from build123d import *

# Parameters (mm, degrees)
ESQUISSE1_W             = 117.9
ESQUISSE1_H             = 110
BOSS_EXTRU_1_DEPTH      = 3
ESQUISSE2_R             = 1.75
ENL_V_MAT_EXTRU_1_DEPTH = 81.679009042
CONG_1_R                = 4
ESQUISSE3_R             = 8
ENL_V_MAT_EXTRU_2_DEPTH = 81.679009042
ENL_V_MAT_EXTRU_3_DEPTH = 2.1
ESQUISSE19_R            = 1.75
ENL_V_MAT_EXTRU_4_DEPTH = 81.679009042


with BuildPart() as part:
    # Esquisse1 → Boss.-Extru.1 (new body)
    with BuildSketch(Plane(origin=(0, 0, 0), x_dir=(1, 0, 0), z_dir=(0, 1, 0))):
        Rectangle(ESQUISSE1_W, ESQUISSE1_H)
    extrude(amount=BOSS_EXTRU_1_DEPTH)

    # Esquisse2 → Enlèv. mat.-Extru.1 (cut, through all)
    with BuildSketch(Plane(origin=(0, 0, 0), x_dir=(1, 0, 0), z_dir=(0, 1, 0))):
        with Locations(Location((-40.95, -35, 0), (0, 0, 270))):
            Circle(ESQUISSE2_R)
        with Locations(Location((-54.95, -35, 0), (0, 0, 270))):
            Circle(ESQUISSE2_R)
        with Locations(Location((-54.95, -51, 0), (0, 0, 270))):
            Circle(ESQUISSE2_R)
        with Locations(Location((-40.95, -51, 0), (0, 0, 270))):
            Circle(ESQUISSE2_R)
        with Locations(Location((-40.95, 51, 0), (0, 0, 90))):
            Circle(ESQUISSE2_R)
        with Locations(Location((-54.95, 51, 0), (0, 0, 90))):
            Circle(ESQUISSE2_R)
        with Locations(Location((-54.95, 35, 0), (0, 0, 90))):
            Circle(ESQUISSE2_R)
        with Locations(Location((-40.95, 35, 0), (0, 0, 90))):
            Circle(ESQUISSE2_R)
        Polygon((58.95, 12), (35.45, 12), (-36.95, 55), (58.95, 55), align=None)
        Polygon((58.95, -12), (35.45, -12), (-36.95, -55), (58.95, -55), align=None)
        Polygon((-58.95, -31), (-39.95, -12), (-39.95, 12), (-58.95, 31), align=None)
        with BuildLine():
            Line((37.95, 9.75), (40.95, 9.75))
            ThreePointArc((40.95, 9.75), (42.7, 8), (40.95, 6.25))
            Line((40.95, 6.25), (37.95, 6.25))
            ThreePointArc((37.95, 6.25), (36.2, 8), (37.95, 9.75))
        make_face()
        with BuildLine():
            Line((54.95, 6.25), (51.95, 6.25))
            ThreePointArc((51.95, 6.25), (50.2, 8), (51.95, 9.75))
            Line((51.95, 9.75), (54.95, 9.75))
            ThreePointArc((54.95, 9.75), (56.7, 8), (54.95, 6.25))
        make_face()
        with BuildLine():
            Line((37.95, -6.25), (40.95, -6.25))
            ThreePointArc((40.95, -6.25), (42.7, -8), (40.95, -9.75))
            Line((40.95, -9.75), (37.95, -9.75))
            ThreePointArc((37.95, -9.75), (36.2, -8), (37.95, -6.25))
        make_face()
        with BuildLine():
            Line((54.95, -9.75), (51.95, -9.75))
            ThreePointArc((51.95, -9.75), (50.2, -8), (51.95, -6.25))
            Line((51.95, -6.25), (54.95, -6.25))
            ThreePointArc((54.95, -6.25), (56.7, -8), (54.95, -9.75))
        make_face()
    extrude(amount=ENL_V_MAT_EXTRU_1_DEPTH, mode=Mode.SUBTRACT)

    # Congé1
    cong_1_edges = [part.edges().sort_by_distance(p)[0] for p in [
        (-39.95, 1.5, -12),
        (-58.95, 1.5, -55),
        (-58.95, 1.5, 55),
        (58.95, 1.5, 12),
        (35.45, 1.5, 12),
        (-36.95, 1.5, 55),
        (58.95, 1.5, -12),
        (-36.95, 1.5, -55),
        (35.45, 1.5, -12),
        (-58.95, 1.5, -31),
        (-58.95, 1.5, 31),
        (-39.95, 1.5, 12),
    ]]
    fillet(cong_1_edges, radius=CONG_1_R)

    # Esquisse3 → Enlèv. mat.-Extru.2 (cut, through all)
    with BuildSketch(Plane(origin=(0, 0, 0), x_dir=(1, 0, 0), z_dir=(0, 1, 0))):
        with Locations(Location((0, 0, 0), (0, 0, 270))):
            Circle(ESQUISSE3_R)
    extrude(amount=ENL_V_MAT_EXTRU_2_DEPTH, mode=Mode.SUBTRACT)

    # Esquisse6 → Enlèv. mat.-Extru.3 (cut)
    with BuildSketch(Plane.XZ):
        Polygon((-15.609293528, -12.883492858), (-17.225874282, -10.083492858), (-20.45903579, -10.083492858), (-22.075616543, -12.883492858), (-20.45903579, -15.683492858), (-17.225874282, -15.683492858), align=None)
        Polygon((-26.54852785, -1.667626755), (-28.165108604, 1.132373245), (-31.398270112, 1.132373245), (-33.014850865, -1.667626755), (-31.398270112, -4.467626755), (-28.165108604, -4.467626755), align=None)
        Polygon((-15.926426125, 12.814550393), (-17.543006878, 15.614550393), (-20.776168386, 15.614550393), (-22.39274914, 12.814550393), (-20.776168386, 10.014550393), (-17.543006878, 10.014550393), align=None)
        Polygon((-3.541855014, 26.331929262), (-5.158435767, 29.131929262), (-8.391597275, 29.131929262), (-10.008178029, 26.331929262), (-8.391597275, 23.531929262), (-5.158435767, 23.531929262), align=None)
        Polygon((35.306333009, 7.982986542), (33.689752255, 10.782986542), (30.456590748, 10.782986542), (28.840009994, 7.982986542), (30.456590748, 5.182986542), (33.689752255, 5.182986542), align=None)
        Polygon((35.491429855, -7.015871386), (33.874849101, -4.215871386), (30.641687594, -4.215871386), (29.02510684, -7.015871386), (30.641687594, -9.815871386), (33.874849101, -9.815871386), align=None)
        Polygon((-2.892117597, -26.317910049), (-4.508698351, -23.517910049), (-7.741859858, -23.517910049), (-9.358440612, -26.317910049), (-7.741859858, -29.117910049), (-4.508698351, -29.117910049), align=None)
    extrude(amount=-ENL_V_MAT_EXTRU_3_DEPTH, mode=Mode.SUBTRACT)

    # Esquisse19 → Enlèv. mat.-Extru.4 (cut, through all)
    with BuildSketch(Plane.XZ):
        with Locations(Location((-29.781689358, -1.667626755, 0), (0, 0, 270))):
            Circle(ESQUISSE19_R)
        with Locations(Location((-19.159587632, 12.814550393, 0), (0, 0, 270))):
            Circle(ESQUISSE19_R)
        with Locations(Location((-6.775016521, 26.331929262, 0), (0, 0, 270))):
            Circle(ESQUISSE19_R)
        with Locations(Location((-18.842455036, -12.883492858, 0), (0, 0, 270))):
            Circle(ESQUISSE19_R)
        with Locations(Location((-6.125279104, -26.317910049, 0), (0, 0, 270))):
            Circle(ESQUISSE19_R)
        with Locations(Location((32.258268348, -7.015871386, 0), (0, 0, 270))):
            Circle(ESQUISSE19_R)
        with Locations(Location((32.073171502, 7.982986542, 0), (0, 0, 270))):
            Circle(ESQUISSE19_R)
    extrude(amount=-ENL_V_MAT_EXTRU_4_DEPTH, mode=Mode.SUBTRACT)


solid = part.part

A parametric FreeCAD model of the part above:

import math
import FreeCAD as App
import Part
import Sketcher
from FreeCAD import Vector
Q = App.Units.Quantity


def edges_at(feature, points):
    """Names of the edges that pass closest to the given points."""
    edges = feature.Shape.Edges
    near = lambda p: min(range(len(edges)), key=lambda i: edges[i].distToShape(Part.Vertex(*p))[0])
    return sorted({f"Edge{near(p) + 1}" for p in points})

doc = App.newDocument("Part")
body = doc.addObject("PartDesign::Body", "Body")

# Sketch on XZ plane
sketch1 = body.newObject("Sketcher::SketchObject", "Sketch")
sketch1.AttachmentSupport = (doc.getObject("XZ_Plane"), [""])
sketch1.MapMode = "FlatFace"
sketch1.addGeometry(Part.LineSegment(Vector(-58.95, -55, 0), Vector(-58.95, 55, 0)), False)
sketch1.addGeometry(Part.LineSegment(Vector(-58.95, 55, 0), Vector(58.95, 55, 0)), False)
sketch1.addGeometry(Part.LineSegment(Vector(58.95, 55, 0), Vector(58.95, -55, 0)), False)
sketch1.addGeometry(Part.LineSegment(Vector(58.95, -55, 0), Vector(-58.95, -55, 0)), False)
sketch1.addConstraint(Sketcher.Constraint("Coincident", 0, 2, 1, 1))
sketch1.addConstraint(Sketcher.Constraint("Coincident", 1, 2, 2, 1))
sketch1.addConstraint(Sketcher.Constraint("Coincident", 2, 2, 3, 1))
sketch1.addConstraint(Sketcher.Constraint("Coincident", 3, 2, 0, 1))
sketch1.addConstraint(Sketcher.Constraint("Vertical", 0))
sketch1.addConstraint(Sketcher.Constraint("Horizontal", 1))
sketch1.addConstraint(Sketcher.Constraint("Vertical", 2))
sketch1.addConstraint(Sketcher.Constraint("Horizontal", 3))
sketch1.addConstraint(Sketcher.Constraint("Symmetric", 0, 2, 2, 2, -1, 1))
sketch1.addConstraint(Sketcher.Constraint("DistanceY", 0, 1, 0, 2, 110.0))
sketch1.addConstraint(Sketcher.Constraint("DistanceX", 1, 1, 1, 2, 117.9))
pad1 = body.newObject("PartDesign::Pad", "Pad")
pad1.Profile = sketch1
pad1.Length = 3
pad1.Reversed = True

# Sketch on XZ plane
sketch2 = body.newObject("Sketcher::SketchObject", "Sketch001")
sketch2.AttachmentSupport = (doc.getObject("XZ_Plane"), [""])
sketch2.MapMode = "FlatFace"
sketch2.addGeometry(Part.Circle(Vector(-40.95, 35, 0), Vector(0, 0, 1), 1.75), False)
sketch2.addGeometry(Part.Circle(Vector(-54.95, 35, 0), Vector(0, 0, 1), 1.75), False)
sketch2.addGeometry(Part.Circle(Vector(-54.95, 51, 0), Vector(0, 0, 1), 1.75), False)
sketch2.addGeometry(Part.Circle(Vector(-40.95, 51, 0), Vector(0, 0, 1), 1.75), False)
sketch2.addGeometry(Part.Circle(Vector(-40.95, -51, 0), Vector(0, 0, 1), 1.75), False)
sketch2.addGeometry(Part.Circle(Vector(-54.95, -51, 0), Vector(0, 0, 1), 1.75), False)
sketch2.addGeometry(Part.Circle(Vector(-54.95, -35, 0), Vector(0, 0, 1), 1.75), False)
sketch2.addGeometry(Part.Circle(Vector(-40.95, -35, 0), Vector(0, 0, 1), 1.75), False)
sketch2.addGeometry(Part.LineSegment(Vector(35.45, -12, 0), Vector(58.95, -12, 0)), False)
sketch2.addGeometry(Part.LineSegment(Vector(58.95, -12, 0), Vector(58.95, -55, 0)), False)
sketch2.addGeometry(Part.LineSegment(Vector(58.95, -55, 0), Vector(-36.95, -55, 0)), False)
sketch2.addGeometry(Part.LineSegment(Vector(-36.95, -55, 0), Vector(35.45, -12, 0)), False)
sketch2.addGeometry(Part.LineSegment(Vector(58.95, 12, 0), Vector(35.45, 12, 0)), False)
sketch2.addGeometry(Part.LineSegment(Vector(35.45, 12, 0), Vector(-36.95, 55, 0)), False)
sketch2.addGeometry(Part.LineSegment(Vector(-36.95, 55, 0), Vector(58.95, 55, 0)), False)
sketch2.addGeometry(Part.LineSegment(Vector(58.95, 55, 0), Vector(58.95, 12, 0)), False)
sketch2.addGeometry(Part.LineSegment(Vector(-58.95, 31, 0), Vector(-39.95, 12, 0)), False)
sketch2.addGeometry(Part.LineSegment(Vector(-39.95, 12, 0), Vector(-39.95, -12, 0)), False)
sketch2.addGeometry(Part.LineSegment(Vector(-39.95, -12, 0), Vector(-58.95, -31, 0)), False)
sketch2.addGeometry(Part.LineSegment(Vector(-58.95, -31, 0), Vector(-58.95, 31, 0)), False)
sketch2.addGeometry(Part.LineSegment(Vector(40.95, -9.75, 0), Vector(37.95, -9.75, 0)), False)
sketch2.addGeometry(Part.ArcOfCircle(Part.Circle(Vector(37.95, -8, 0), Vector(0, 0, 1), 1.75), math.radians(90), math.radians(270)), False)
sketch2.addGeometry(Part.LineSegment(Vector(37.95, -6.25, 0), Vector(40.95, -6.25, 0)), False)
sketch2.addGeometry(Part.ArcOfCircle(Part.Circle(Vector(40.95, -8, 0), Vector(0, 0, 1), 1.75), math.radians(-90), math.radians(90)), False)
sketch2.addGeometry(Part.LineSegment(Vector(51.95, -6.25, 0), Vector(54.95, -6.25, 0)), False)
sketch2.addGeometry(Part.ArcOfCircle(Part.Circle(Vector(54.95, -8, 0), Vector(0, 0, 1), 1.75), math.radians(-90), math.radians(90)), False)
sketch2.addGeometry(Part.LineSegment(Vector(54.95, -9.75, 0), Vector(51.95, -9.75, 0)), False)
sketch2.addGeometry(Part.ArcOfCircle(Part.Circle(Vector(51.95, -8, 0), Vector(0, 0, 1), 1.75), math.radians(90), math.radians(270)), False)
sketch2.addGeometry(Part.LineSegment(Vector(40.95, 6.25, 0), Vector(37.95, 6.25, 0)), False)
sketch2.addGeometry(Part.ArcOfCircle(Part.Circle(Vector(37.95, 8, 0), Vector(0, 0, 1), 1.75), math.radians(90), math.radians(270)), False)
sketch2.addGeometry(Part.LineSegment(Vector(37.95, 9.75, 0), Vector(40.95, 9.75, 0)), False)
sketch2.addGeometry(Part.ArcOfCircle(Part.Circle(Vector(40.95, 8, 0), Vector(0, 0, 1), 1.75), math.radians(-90), math.radians(90)), False)
sketch2.addGeometry(Part.LineSegment(Vector(51.95, 9.75, 0), Vector(54.95, 9.75, 0)), False)
sketch2.addGeometry(Part.ArcOfCircle(Part.Circle(Vector(54.95, 8, 0), Vector(0, 0, 1), 1.75), math.radians(-90), math.radians(90)), False)
sketch2.addGeometry(Part.LineSegment(Vector(54.95, 6.25, 0), Vector(51.95, 6.25, 0)), False)
sketch2.addGeometry(Part.ArcOfCircle(Part.Circle(Vector(51.95, 8, 0), Vector(0, 0, 1), 1.75), math.radians(90), math.radians(270)), False)
sketch2.addConstraint(Sketcher.Constraint("Coincident", 8, 2, 9, 1))
sketch2.addConstraint(Sketcher.Constraint("Coincident", 9, 2, 10, 1))
sketch2.addConstraint(Sketcher.Constraint("Coincident", 10, 2, 11, 1))
sketch2.addConstraint(Sketcher.Constraint("Coincident", 11, 2, 8, 1))
sketch2.addConstraint(Sketcher.Constraint("Coincident", 12, 2, 13, 1))
sketch2.addConstraint(Sketcher.Constraint("Coincident", 13, 2, 14, 1))
sketch2.addConstraint(Sketcher.Constraint("Coincident", 14, 2, 15, 1))
sketch2.addConstraint(Sketcher.Constraint("Coincident", 15, 2, 12, 1))
sketch2.addConstraint(Sketcher.Constraint("Coincident", 16, 2, 17, 1))
sketch2.addConstraint(Sketcher.Constraint("Coincident", 17, 2, 18, 1))
sketch2.addConstraint(Sketcher.Constraint("Coincident", 18, 2, 19, 1))
sketch2.addConstraint(Sketcher.Constraint("Coincident", 19, 2, 16, 1))
sketch2.addConstraint(Sketcher.Constraint("Tangent", 20, 2, 21, 2))
sketch2.addConstraint(Sketcher.Constraint("Tangent", 21, 1, 22, 1))
sketch2.addConstraint(Sketcher.Constraint("Tangent", 22, 2, 23, 2))
sketch2.addConstraint(Sketcher.Constraint("Tangent", 23, 1, 20, 1))
sketch2.addConstraint(Sketcher.Constraint("Tangent", 24, 2, 25, 2))
sketch2.addConstraint(Sketcher.Constraint("Tangent", 25, 1, 26, 1))
sketch2.addConstraint(Sketcher.Constraint("Tangent", 26, 2, 27, 2))
sketch2.addConstraint(Sketcher.Constraint("Tangent", 27, 1, 24, 1))
sketch2.addConstraint(Sketcher.Constraint("Tangent", 28, 2, 29, 2))
sketch2.addConstraint(Sketcher.Constraint("Tangent", 29, 1, 30, 1))
sketch2.addConstraint(Sketcher.Constraint("Tangent", 30, 2, 31, 2))
sketch2.addConstraint(Sketcher.Constraint("Tangent", 31, 1, 28, 1))
sketch2.addConstraint(Sketcher.Constraint("Tangent", 32, 2, 33, 2))
sketch2.addConstraint(Sketcher.Constraint("Tangent", 33, 1, 34, 1))
sketch2.addConstraint(Sketcher.Constraint("Tangent", 34, 2, 35, 2))
sketch2.addConstraint(Sketcher.Constraint("Tangent", 35, 1, 32, 1))
sketch2.addConstraint(Sketcher.Constraint("Horizontal", 8))
sketch2.addConstraint(Sketcher.Constraint("Vertical", 9))
sketch2.addConstraint(Sketcher.Constraint("Horizontal", 10))
sketch2.addConstraint(Sketcher.Constraint("Horizontal", 12))
sketch2.addConstraint(Sketcher.Constraint("Horizontal", 14))
sketch2.addConstraint(Sketcher.Constraint("Vertical", 15))
sketch2.addConstraint(Sketcher.Constraint("Vertical", 17))
sketch2.addConstraint(Sketcher.Constraint("Vertical", 19))
sketch2.addConstraint(Sketcher.Constraint("Horizontal", 20))
sketch2.addConstraint(Sketcher.Constraint("Horizontal", 22))
sketch2.addConstraint(Sketcher.Constraint("Horizontal", 24))
sketch2.addConstraint(Sketcher.Constraint("Horizontal", 26))
sketch2.addConstraint(Sketcher.Constraint("Horizontal", 28))
sketch2.addConstraint(Sketcher.Constraint("Horizontal", 30))
sketch2.addConstraint(Sketcher.Constraint("Horizontal", 32))
sketch2.addConstraint(Sketcher.Constraint("Horizontal", 34))
sketch2.addConstraint(Sketcher.Constraint("Equal", 0, 1))
sketch2.addConstraint(Sketcher.Constraint("Equal", 1, 2))
sketch2.addConstraint(Sketcher.Constraint("Equal", 2, 3))
sketch2.addConstraint(Sketcher.Constraint("Equal", 3, 4))
sketch2.addConstraint(Sketcher.Constraint("Equal", 4, 5))
sketch2.addConstraint(Sketcher.Constraint("Equal", 5, 6))
sketch2.addConstraint(Sketcher.Constraint("Equal", 6, 7))
sketch2.addConstraint(Sketcher.Constraint("Equal", 7, 21))
sketch2.addConstraint(Sketcher.Constraint("Equal", 23, 25))
sketch2.addConstraint(Sketcher.Constraint("Equal", 27, 29))
sketch2.addConstraint(Sketcher.Constraint("Equal", 31, 33))
sketch2.addConstraint(Sketcher.Constraint("Symmetric", 3, 3, 4, 3, -1))
sketch2.addConstraint(Sketcher.Constraint("Symmetric", 2, 3, 5, 3, -1))
sketch2.addConstraint(Sketcher.Constraint("Symmetric", 1, 3, 6, 3, -1))
sketch2.addConstraint(Sketcher.Constraint("Symmetric", 0, 3, 7, 3, -1))
sketch2.addConstraint(Sketcher.Constraint("Symmetric", 21, 3, 29, 3, -1))
sketch2.addConstraint(Sketcher.Constraint("Symmetric", 25, 3, 33, 3, -1))
sketch2.addConstraint(Sketcher.Constraint("Symmetric", 11, 2, 12, 2, -1))
sketch2.addConstraint(Sketcher.Constraint("Symmetric", 10, 2, 13, 2, -1))
sketch2.addConstraint(Sketcher.Constraint("Perpendicular", 16, 18))
sketch2.addConstraint(Sketcher.Constraint("Horizontal", 0, 3, 1, 3))
sketch2.addConstraint(Sketcher.Constraint("Horizontal", 2, 3, 3, 3))
sketch2.addConstraint(Sketcher.Constraint("Horizontal", 23, 3, 25, 3))
sketch2.addConstraint(Sketcher.Constraint("Horizontal", 15, 2, 16, 2))
sketch2.addConstraint(Sketcher.Constraint("Horizontal", 11, 2, 17, 2))
sketch2.addConstraint(Sketcher.Constraint("Vertical", 1, 3, 2, 3))
sketch2.addConstraint(Sketcher.Constraint("Vertical", 0, 3, 3, 3))
sketch2.addConstraint(Sketcher.Constraint("Vertical", 23, 3, 31, 3))
sketch2.addConstraint(Sketcher.Constraint("Vertical", 27, 3, 35, 3))
sketch2.addConstraint(Sketcher.Constraint("Vertical", 9, 2, 14, 2))
sketch2.addConstraint(Sketcher.Constraint("Equal", 22, 24))
sketch2.addConstraint(Sketcher.Constraint("Equal", 16, 18))
sketch2.addConstraint(Sketcher.Constraint("Diameter", 0, 3.5))
sketch2.addConstraint(Sketcher.Constraint("DistanceX", 20, 2, 20, 1, 3.0))
sketch2.addConstraint(Sketcher.Constraint("DistanceY", 9, 2, 9, 1, 43.0))
sketch2.addConstraint(Sketcher.Constraint("DistanceY", 17, 2, 17, 1, 24.0))
sketch2.addConstraint(Sketcher.Constraint("DistanceY", 19, 1, 19, 2, 62.0))
sketch2.addConstraint(Sketcher.Constraint("DistanceX", 8, 1, 8, 2, 23.5))
sketch2.addConstraint(Sketcher.Constraint("DistanceX", 10, 2, 10, 1, 95.9))
sketch2.addConstraint(Sketcher.Constraint("DistanceY", -1, 1, 0, 3, 35.0))
sketch2.addConstraint(Sketcher.Constraint("DistanceY", -1, 1, 2, 3, 51.0))
sketch2.addConstraint(Sketcher.Constraint("DistanceY", 21, 3, -1, 1, 8.0))
sketch2.addConstraint(Sketcher.Constraint("DistanceX", 1, 3, 0, 3, 14.0))
sketch2.addConstraint(Sketcher.Constraint("DistanceX", 23, 3, 25, 3, 14.0))
sketch2.addConstraint(Sketcher.Constraint("DistanceX", 25, 3, 8, 2, 4.0))
sketch2.addConstraint(Sketcher.Constraint("DistanceX", 4, 3, 10, 2, 4.0))
sketch2.addConstraint(Sketcher.Constraint("DistanceX", 0, 3, 16, 2, 1.0))
sketch2.addConstraint(Sketcher.Constraint("DistanceX", 0, 3, -1, 1, 40.95))
pocket1 = body.newObject("PartDesign::Pocket", "Pocket")
pocket1.Profile = sketch2
pocket1.Type = "ThroughAll"
doc.recompute()

fillet = body.newObject("PartDesign::Fillet", "Fillet")
fillet.Base = (pocket1, edges_at(pocket1, [
    (-39.95, 1.5, -12),
    (-58.95, 1.5, -55),
    (-58.95, 1.5, 55),
    (58.95, 1.5, 12),
    (35.45, 1.5, 12),
    (-36.95, 1.5, 55),
    (58.95, 1.5, -12),
    (-36.95, 1.5, -55),
    (35.45, 1.5, -12),
    (-58.95, 1.5, -31),
    (-58.95, 1.5, 31),
    (-39.95, 1.5, 12),
]))
fillet.Radius = 4

# Sketch on XZ plane
sketch3 = body.newObject("Sketcher::SketchObject", "Sketch002")
sketch3.AttachmentSupport = (doc.getObject("XZ_Plane"), [""])
sketch3.MapMode = "FlatFace"
sketch3.addGeometry(Part.Circle(Vector(0, 0, 0), Vector(0, 0, 1), 8), False)
sketch3.addConstraint(Sketcher.Constraint("Coincident", 0, 3, -1, 1))
sketch3.addConstraint(Sketcher.Constraint("Diameter", 0, 16.0))
pocket2 = body.newObject("PartDesign::Pocket", "Pocket001")
pocket2.Profile = sketch3
pocket2.Type = "ThroughAll"

# Sketch on XZ plane
sketch4 = body.newObject("Sketcher::SketchObject", "Sketch003")
sketch4.AttachmentSupport = (doc.getObject("XZ_Plane"), [""])
sketch4.MapMode = "FlatFace"
sketch4.addGeometry(Part.LineSegment(Vector(-15.609294, -12.883493, 0), Vector(-17.225874, -10.083493, 0)), False)
sketch4.addGeometry(Part.LineSegment(Vector(-17.225874, -10.083493, 0), Vector(-20.459036, -10.083493, 0)), False)
sketch4.addGeometry(Part.LineSegment(Vector(-20.459036, -10.083493, 0), Vector(-22.075617, -12.883493, 0)), False)
sketch4.addGeometry(Part.LineSegment(Vector(-22.075617, -12.883493, 0), Vector(-20.459036, -15.683493, 0)), False)
sketch4.addGeometry(Part.LineSegment(Vector(-20.459036, -15.683493, 0), Vector(-17.225874, -15.683493, 0)), False)
sketch4.addGeometry(Part.LineSegment(Vector(-17.225874, -15.683493, 0), Vector(-15.609294, -12.883493, 0)), False)
sketch4.addGeometry(Part.LineSegment(Vector(-26.548528, -1.667627, 0), Vector(-28.165109, 1.132373, 0)), False)
sketch4.addGeometry(Part.LineSegment(Vector(-28.165109, 1.132373, 0), Vector(-31.39827, 1.132373, 0)), False)
sketch4.addGeometry(Part.LineSegment(Vector(-31.39827, 1.132373, 0), Vector(-33.014851, -1.667627, 0)), False)
sketch4.addGeometry(Part.LineSegment(Vector(-33.014851, -1.667627, 0), Vector(-31.39827, -4.467627, 0)), False)
sketch4.addGeometry(Part.LineSegment(Vector(-31.39827, -4.467627, 0), Vector(-28.165109, -4.467627, 0)), False)
sketch4.addGeometry(Part.LineSegment(Vector(-28.165109, -4.467627, 0), Vector(-26.548528, -1.667627, 0)), False)
sketch4.addGeometry(Part.LineSegment(Vector(-15.926426, 12.81455, 0), Vector(-17.543007, 15.61455, 0)), False)
sketch4.addGeometry(Part.LineSegment(Vector(-17.543007, 15.61455, 0), Vector(-20.776168, 15.61455, 0)), False)
sketch4.addGeometry(Part.LineSegment(Vector(-20.776168, 15.61455, 0), Vector(-22.392749, 12.81455, 0)), False)
sketch4.addGeometry(Part.LineSegment(Vector(-22.392749, 12.81455, 0), Vector(-20.776168, 10.01455, 0)), False)
sketch4.addGeometry(Part.LineSegment(Vector(-20.776168, 10.01455, 0), Vector(-17.543007, 10.01455, 0)), False)
sketch4.addGeometry(Part.LineSegment(Vector(-17.543007, 10.01455, 0), Vector(-15.926426, 12.81455, 0)), False)
sketch4.addGeometry(Part.LineSegment(Vector(-3.541855, 26.331929, 0), Vector(-5.158436, 29.131929, 0)), False)
sketch4.addGeometry(Part.LineSegment(Vector(-5.158436, 29.131929, 0), Vector(-8.391597, 29.131929, 0)), False)
sketch4.addGeometry(Part.LineSegment(Vector(-8.391597, 29.131929, 0), Vector(-10.008178, 26.331929, 0)), False)
sketch4.addGeometry(Part.LineSegment(Vector(-10.008178, 26.331929, 0), Vector(-8.391597, 23.531929, 0)), False)
sketch4.addGeometry(Part.LineSegment(Vector(-8.391597, 23.531929, 0), Vector(-5.158436, 23.531929, 0)), False)
sketch4.addGeometry(Part.LineSegment(Vector(-5.158436, 23.531929, 0), Vector(-3.541855, 26.331929, 0)), False)
sketch4.addGeometry(Part.LineSegment(Vector(35.306333, 7.982987, 0), Vector(33.689752, 10.782987, 0)), False)
sketch4.addGeometry(Part.LineSegment(Vector(33.689752, 10.782987, 0), Vector(30.456591, 10.782987, 0)), False)
sketch4.addGeometry(Part.LineSegment(Vector(30.456591, 10.782987, 0), Vector(28.84001, 7.982987, 0)), False)
sketch4.addGeometry(Part.LineSegment(Vector(28.84001, 7.982987, 0), Vector(30.456591, 5.182987, 0)), False)
sketch4.addGeometry(Part.LineSegment(Vector(30.456591, 5.182987, 0), Vector(33.689752, 5.182987, 0)), False)
sketch4.addGeometry(Part.LineSegment(Vector(33.689752, 5.182987, 0), Vector(35.306333, 7.982987, 0)), False)
sketch4.addGeometry(Part.LineSegment(Vector(35.49143, -7.015871, 0), Vector(33.874849, -4.215871, 0)), False)
sketch4.addGeometry(Part.LineSegment(Vector(33.874849, -4.215871, 0), Vector(30.641688, -4.215871, 0)), False)
sketch4.addGeometry(Part.LineSegment(Vector(30.641688, -4.215871, 0), Vector(29.025107, -7.015871, 0)), False)
sketch4.addGeometry(Part.LineSegment(Vector(29.025107, -7.015871, 0), Vector(30.641688, -9.815871, 0)), False)
sketch4.addGeometry(Part.LineSegment(Vector(30.641688, -9.815871, 0), Vector(33.874849, -9.815871, 0)), False)
sketch4.addGeometry(Part.LineSegment(Vector(33.874849, -9.815871, 0), Vector(35.49143, -7.015871, 0)), False)
sketch4.addGeometry(Part.LineSegment(Vector(-2.892118, -26.31791, 0), Vector(-4.508698, -23.51791, 0)), False)
sketch4.addGeometry(Part.LineSegment(Vector(-4.508698, -23.51791, 0), Vector(-7.74186, -23.51791, 0)), False)
sketch4.addGeometry(Part.LineSegment(Vector(-7.74186, -23.51791, 0), Vector(-9.358441, -26.31791, 0)), False)
sketch4.addGeometry(Part.LineSegment(Vector(-9.358441, -26.31791, 0), Vector(-7.74186, -29.11791, 0)), False)
sketch4.addGeometry(Part.LineSegment(Vector(-7.74186, -29.11791, 0), Vector(-4.508698, -29.11791, 0)), False)
sketch4.addGeometry(Part.LineSegment(Vector(-4.508698, -29.11791, 0), Vector(-2.892118, -26.31791, 0)), False)
sketch4.addConstraint(Sketcher.Constraint("Coincident", 0, 2, 1, 1))
sketch4.addConstraint(Sketcher.Constraint("Coincident", 1, 2, 2, 1))
sketch4.addConstraint(Sketcher.Constraint("Coincident", 2, 2, 3, 1))
sketch4.addConstraint(Sketcher.Constraint("Coincident", 3, 2, 4, 1))
sketch4.addConstraint(Sketcher.Constraint("Coincident", 4, 2, 5, 1))
sketch4.addConstraint(Sketcher.Constraint("Coincident", 5, 2, 0, 1))
sketch4.addConstraint(Sketcher.Constraint("Coincident", 6, 2, 7, 1))
sketch4.addConstraint(Sketcher.Constraint("Coincident", 7, 2, 8, 1))
sketch4.addConstraint(Sketcher.Constraint("Coincident", 8, 2, 9, 1))
sketch4.addConstraint(Sketcher.Constraint("Coincident", 9, 2, 10, 1))
sketch4.addConstraint(Sketcher.Constraint("Coincident", 10, 2, 11, 1))
sketch4.addConstraint(Sketcher.Constraint("Coincident", 11, 2, 6, 1))
sketch4.addConstraint(Sketcher.Constraint("Coincident", 12, 2, 13, 1))
sketch4.addConstraint(Sketcher.Constraint("Coincident", 13, 2, 14, 1))
sketch4.addConstraint(Sketcher.Constraint("Coincident", 14, 2, 15, 1))
sketch4.addConstraint(Sketcher.Constraint("Coincident", 15, 2, 16, 1))
sketch4.addConstraint(Sketcher.Constraint("Coincident", 16, 2, 17, 1))
sketch4.addConstraint(Sketcher.Constraint("Coincident", 17, 2, 12, 1))
sketch4.addConstraint(Sketcher.Constraint("Coincident", 18, 2, 19, 1))
sketch4.addConstraint(Sketcher.Constraint("Coincident", 19, 2, 20, 1))
sketch4.addConstraint(Sketcher.Constraint("Coincident", 20, 2, 21, 1))
sketch4.addConstraint(Sketcher.Constraint("Coincident", 21, 2, 22, 1))
sketch4.addConstraint(Sketcher.Constraint("Coincident", 22, 2, 23, 1))
sketch4.addConstraint(Sketcher.Constraint("Coincident", 23, 2, 18, 1))
sketch4.addConstraint(Sketcher.Constraint("Coincident", 24, 2, 25, 1))
sketch4.addConstraint(Sketcher.Constraint("Coincident", 25, 2, 26, 1))
sketch4.addConstraint(Sketcher.Constraint("Coincident", 26, 2, 27, 1))
sketch4.addConstraint(Sketcher.Constraint("Coincident", 27, 2, 28, 1))
sketch4.addConstraint(Sketcher.Constraint("Coincident", 28, 2, 29, 1))
sketch4.addConstraint(Sketcher.Constraint("Coincident", 29, 2, 24, 1))
sketch4.addConstraint(Sketcher.Constraint("Coincident", 30, 2, 31, 1))
sketch4.addConstraint(Sketcher.Constraint("Coincident", 31, 2, 32, 1))
sketch4.addConstraint(Sketcher.Constraint("Coincident", 32, 2, 33, 1))
sketch4.addConstraint(Sketcher.Constraint("Coincident", 33, 2, 34, 1))
sketch4.addConstraint(Sketcher.Constraint("Coincident", 34, 2, 35, 1))
sketch4.addConstraint(Sketcher.Constraint("Coincident", 35, 2, 30, 1))
sketch4.addConstraint(Sketcher.Constraint("Coincident", 36, 2, 37, 1))
sketch4.addConstraint(Sketcher.Constraint("Coincident", 37, 2, 38, 1))
sketch4.addConstraint(Sketcher.Constraint("Coincident", 38, 2, 39, 1))
sketch4.addConstraint(Sketcher.Constraint("Coincident", 39, 2, 40, 1))
sketch4.addConstraint(Sketcher.Constraint("Coincident", 40, 2, 41, 1))
sketch4.addConstraint(Sketcher.Constraint("Coincident", 41, 2, 36, 1))
sketch4.addConstraint(Sketcher.Constraint("Horizontal", 1))
sketch4.addConstraint(Sketcher.Constraint("Horizontal", 4))
sketch4.addConstraint(Sketcher.Constraint("Horizontal", 7))
sketch4.addConstraint(Sketcher.Constraint("Horizontal", 10))
sketch4.addConstraint(Sketcher.Constraint("Horizontal", 13))
sketch4.addConstraint(Sketcher.Constraint("Horizontal", 16))
sketch4.addConstraint(Sketcher.Constraint("Horizontal", 19))
sketch4.addConstraint(Sketcher.Constraint("Horizontal", 22))
sketch4.addConstraint(Sketcher.Constraint("Horizontal", 25))
sketch4.addConstraint(Sketcher.Constraint("Horizontal", 28))
sketch4.addConstraint(Sketcher.Constraint("Horizontal", 31))
sketch4.addConstraint(Sketcher.Constraint("Horizontal", 34))
sketch4.addConstraint(Sketcher.Constraint("Horizontal", 37))
sketch4.addConstraint(Sketcher.Constraint("Horizontal", 40))
sketch4.addConstraint(Sketcher.Constraint("Parallel", 0, 3))
sketch4.addConstraint(Sketcher.Constraint("Parallel", 2, 5))
sketch4.addConstraint(Sketcher.Constraint("Parallel", 3, 6))
sketch4.addConstraint(Sketcher.Constraint("Parallel", 5, 8))
sketch4.addConstraint(Sketcher.Constraint("Parallel", 6, 9))
sketch4.addConstraint(Sketcher.Constraint("Parallel", 8, 11))
sketch4.addConstraint(Sketcher.Constraint("Parallel", 9, 12))
sketch4.addConstraint(Sketcher.Constraint("Parallel", 11, 14))
sketch4.addConstraint(Sketcher.Constraint("Parallel", 12, 15))
sketch4.addConstraint(Sketcher.Constraint("Parallel", 14, 17))
sketch4.addConstraint(Sketcher.Constraint("Parallel", 15, 18))
sketch4.addConstraint(Sketcher.Constraint("Parallel", 17, 20))
sketch4.addConstraint(Sketcher.Constraint("Parallel", 18, 21))
sketch4.addConstraint(Sketcher.Constraint("Parallel", 20, 23))
sketch4.addConstraint(Sketcher.Constraint("Parallel", 21, 24))
sketch4.addConstraint(Sketcher.Constraint("Parallel", 23, 26))
sketch4.addConstraint(Sketcher.Constraint("Parallel", 24, 27))
sketch4.addConstraint(Sketcher.Constraint("Parallel", 26, 29))
sketch4.addConstraint(Sketcher.Constraint("Parallel", 27, 30))
sketch4.addConstraint(Sketcher.Constraint("Parallel", 29, 32))
sketch4.addConstraint(Sketcher.Constraint("Parallel", 30, 33))
sketch4.addConstraint(Sketcher.Constraint("Parallel", 32, 35))
sketch4.addConstraint(Sketcher.Constraint("Parallel", 33, 36))
sketch4.addConstraint(Sketcher.Constraint("Parallel", 35, 38))
sketch4.addConstraint(Sketcher.Constraint("Parallel", 36, 39))
sketch4.addConstraint(Sketcher.Constraint("Parallel", 38, 41))
sketch4.addConstraint(Sketcher.Constraint("Horizontal", 2, 2, 5, 2))
sketch4.addConstraint(Sketcher.Constraint("Horizontal", 8, 2, 11, 2))
sketch4.addConstraint(Sketcher.Constraint("Horizontal", 14, 2, 17, 2))
sketch4.addConstraint(Sketcher.Constraint("Horizontal", 20, 2, 23, 2))
sketch4.addConstraint(Sketcher.Constraint("Horizontal", 26, 2, 29, 2))
sketch4.addConstraint(Sketcher.Constraint("Horizontal", 32, 2, 35, 2))
sketch4.addConstraint(Sketcher.Constraint("Horizontal", 38, 2, 41, 2))
sketch4.addConstraint(Sketcher.Constraint("Vertical", 1, 2, 3, 2))
sketch4.addConstraint(Sketcher.Constraint("Vertical", 0, 2, 4, 2))
sketch4.addConstraint(Sketcher.Constraint("Vertical", 7, 2, 9, 2))
sketch4.addConstraint(Sketcher.Constraint("Vertical", 13, 2, 15, 2))
sketch4.addConstraint(Sketcher.Constraint("Vertical", 19, 2, 21, 2))
sketch4.addConstraint(Sketcher.Constraint("Vertical", 25, 2, 27, 2))
sketch4.addConstraint(Sketcher.Constraint("Vertical", 31, 2, 33, 2))
sketch4.addConstraint(Sketcher.Constraint("Vertical", 37, 2, 39, 2))
sketch4.addConstraint(Sketcher.Constraint("Equal", 4, 7))
sketch4.addConstraint(Sketcher.Constraint("Equal", 10, 13))
sketch4.addConstraint(Sketcher.Constraint("Equal", 16, 19))
sketch4.addConstraint(Sketcher.Constraint("Equal", 22, 25))
sketch4.addConstraint(Sketcher.Constraint("Equal", 28, 31))
sketch4.addConstraint(Sketcher.Constraint("Equal", 34, 37))
sketch4.addConstraint(Sketcher.Constraint("Equal", 5, 6))
sketch4.addConstraint(Sketcher.Constraint("Equal", 11, 12))
sketch4.addConstraint(Sketcher.Constraint("Equal", 17, 18))
sketch4.addConstraint(Sketcher.Constraint("Equal", 23, 24))
sketch4.addConstraint(Sketcher.Constraint("Equal", 29, 30))
sketch4.addConstraint(Sketcher.Constraint("Equal", 35, 36))
sketch4.addConstraint(Sketcher.Constraint("Angle", 0, Q("120 deg")))
sketch4.addConstraint(Sketcher.Constraint("DistanceY", 2, 2, 1, 2, 2.8))
sketch4.addConstraint(Sketcher.Constraint("DistanceX", 1, 2, 1, 1, 3.233162))
sketch4.addConstraint(Sketcher.Constraint("DistanceX", 36, 2, -1, 1, 4.508698))
sketch4.addConstraint(Sketcher.Constraint("DistanceX", 6, 2, 12, 2, 10.622102))
sketch4.addConstraint(Sketcher.Constraint("DistanceX", 6, 2, -1, 1, 28.165109))
sketch4.addConstraint(Sketcher.Constraint("DistanceY", -1, 1, 12, 2, 15.61455))
sketch4.addConstraint(Sketcher.Constraint("DistanceY", -1, 1, 18, 2, 29.131929))
sketch4.addConstraint(Sketcher.Constraint("DistanceX", 20, 2, -1, 1, 10.008178))
sketch4.addConstraint(Sketcher.Constraint("DistanceX", -1, 1, 25, 2, 30.456591))
sketch4.addConstraint(Sketcher.Constraint("DistanceX", -1, 1, 30, 2, 33.874849))
sketch4.addConstraint(Sketcher.Constraint("DistanceY", 30, 2, -1, 1, 4.215871))
sketch4.addConstraint(Sketcher.Constraint("DistanceY", 36, 2, -1, 1, 23.51791))
sketch4.addConstraint(Sketcher.Constraint("DistanceX", 2, 2, 36, 2, 17.566918))
sketch4.addConstraint(Sketcher.Constraint("DistanceY", 0, 2, -1, 1, 10.083493))
sketch4.addConstraint(Sketcher.Constraint("DistanceY", -1, 1, 6, 2, 1.132373))
sketch4.addConstraint(Sketcher.Constraint("DistanceY", -1, 1, 24, 2, 10.782987))
pocket3 = body.newObject("PartDesign::Pocket", "Pocket002")
pocket3.Profile = sketch4
pocket3.Length = 2.1

# Sketch on XZ plane
sketch5 = body.newObject("Sketcher::SketchObject", "Sketch004")
sketch5.AttachmentSupport = (doc.getObject("XZ_Plane"), [""])
sketch5.MapMode = "FlatFace"
sketch5.addGeometry(Part.Circle(Vector(-29.781689, -1.667627, 0), Vector(0, 0, 1), 1.75), False)
sketch5.addGeometry(Part.Circle(Vector(-19.159588, 12.81455, 0), Vector(0, 0, 1), 1.75), False)
sketch5.addGeometry(Part.Circle(Vector(-6.775017, 26.331929, 0), Vector(0, 0, 1), 1.75), False)
sketch5.addGeometry(Part.Circle(Vector(-18.842455, -12.883493, 0), Vector(0, 0, 1), 1.75), False)
sketch5.addGeometry(Part.Circle(Vector(-6.125279, -26.31791, 0), Vector(0, 0, 1), 1.75), False)
sketch5.addGeometry(Part.Circle(Vector(32.258268, -7.015871, 0), Vector(0, 0, 1), 1.75), False)
sketch5.addGeometry(Part.Circle(Vector(32.073172, 7.982987, 0), Vector(0, 0, 1), 1.75), False)
sketch5.addConstraint(Sketcher.Constraint("Equal", 0, 1))
sketch5.addConstraint(Sketcher.Constraint("Equal", 1, 2))
sketch5.addConstraint(Sketcher.Constraint("Equal", 2, 3))
sketch5.addConstraint(Sketcher.Constraint("Equal", 3, 4))
sketch5.addConstraint(Sketcher.Constraint("Equal", 4, 5))
sketch5.addConstraint(Sketcher.Constraint("Equal", 5, 6))
sketch5.addConstraint(Sketcher.Constraint("Diameter", 0, 3.5))
sketch5.addConstraint(Sketcher.Constraint("DistanceX", 0, 3, 1, 3, 10.622102))
sketch5.addConstraint(Sketcher.Constraint("DistanceY", 5, 3, 2, 3, 33.347801))
sketch5.addConstraint(Sketcher.Constraint("DistanceX", 0, 3, -1, 1, 29.781689))
sketch5.addConstraint(Sketcher.Constraint("DistanceY", -1, 1, 1, 3, 12.81455))
sketch5.addConstraint(Sketcher.Constraint("DistanceY", -1, 1, 2, 3, 26.331929))
sketch5.addConstraint(Sketcher.Constraint("DistanceX", 4, 3, -1, 1, 6.125279))
sketch5.addConstraint(Sketcher.Constraint("DistanceY", 4, 3, -1, 1, 26.31791))
sketch5.addConstraint(Sketcher.Constraint("DistanceX", -1, 1, 5, 3, 32.258268))
sketch5.addConstraint(Sketcher.Constraint("DistanceX", -1, 1, 6, 3, 32.073172))
sketch5.addConstraint(Sketcher.Constraint("DistanceX", 1, 3, 2, 3, 12.384571))
sketch5.addConstraint(Sketcher.Constraint("DistanceX", 3, 3, 2, 3, 12.067439))
sketch5.addConstraint(Sketcher.Constraint("DistanceY", 3, 3, 5, 3, 5.867621))
sketch5.addConstraint(Sketcher.Constraint("DistanceY", 3, 3, 6, 3, 20.866479))
sketch5.addConstraint(Sketcher.Constraint("DistanceY", 0, 3, -1, 1, 1.667627))
pocket4 = body.newObject("PartDesign::Pocket", "Pocket003")
pocket4.Profile = sketch5
pocket4.Type = "ThroughAll"

doc.recompute()
